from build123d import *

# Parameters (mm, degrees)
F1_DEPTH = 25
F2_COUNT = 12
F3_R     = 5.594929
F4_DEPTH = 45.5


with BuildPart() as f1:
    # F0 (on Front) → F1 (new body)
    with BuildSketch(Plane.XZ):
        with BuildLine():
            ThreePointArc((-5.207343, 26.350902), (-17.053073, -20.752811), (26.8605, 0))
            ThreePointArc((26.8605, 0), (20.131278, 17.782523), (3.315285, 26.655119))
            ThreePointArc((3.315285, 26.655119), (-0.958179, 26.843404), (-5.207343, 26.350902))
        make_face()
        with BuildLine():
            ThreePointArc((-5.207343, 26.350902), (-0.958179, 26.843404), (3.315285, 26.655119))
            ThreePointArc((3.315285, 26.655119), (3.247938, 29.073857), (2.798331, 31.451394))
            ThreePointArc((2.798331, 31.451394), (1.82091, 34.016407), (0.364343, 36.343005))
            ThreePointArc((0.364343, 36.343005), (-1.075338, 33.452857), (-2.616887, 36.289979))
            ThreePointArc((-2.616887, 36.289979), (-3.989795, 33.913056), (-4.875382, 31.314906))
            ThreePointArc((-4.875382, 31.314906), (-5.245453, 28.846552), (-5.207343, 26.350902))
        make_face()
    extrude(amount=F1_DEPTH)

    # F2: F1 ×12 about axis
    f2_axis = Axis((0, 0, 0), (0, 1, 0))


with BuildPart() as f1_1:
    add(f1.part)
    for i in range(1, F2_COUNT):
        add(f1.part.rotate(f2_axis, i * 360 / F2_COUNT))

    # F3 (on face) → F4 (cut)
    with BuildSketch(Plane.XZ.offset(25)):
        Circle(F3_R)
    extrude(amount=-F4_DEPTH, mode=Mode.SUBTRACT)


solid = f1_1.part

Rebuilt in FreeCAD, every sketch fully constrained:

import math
import FreeCAD as App
import Part
import Sketcher

V = App.Vector
Q = App.Units.Quantity

doc = App.newDocument("Part")
body = doc.addObject("PartDesign::Body", "Body")

# Sketch on XZ plane
sketch1 = body.newObject("Sketcher::SketchObject", "Sketch")
sketch1.AttachmentSupport = (doc.getObject("XZ_Plane"), [""])
sketch1.MapMode = "FlatFace"
sketch1.addGeometry(Part.ArcOfCircle(Part.Circle(V(0, 0, 0), V(0, 0, 1), 26.8605), math.radians(101.178498), math.radians(360)), False)
sketch1.addGeometry(Part.ArcOfCircle(Part.Circle(V(0, 0.000001, 0), V(0, 0, 1), 26.8605), math.radians(-0.000001), math.radians(82.91013)), False)
sketch1.addGeometry(Part.ArcOfCircle(Part.Circle(V(-11.892527, 27.441981, 0), V(0, 0, 1), 15.228154), math.radians(-2.961881), math.radians(15.265337)), False)
sketch1.addGeometry(Part.ArcOfCircle(Part.Circle(V(-10.78352, 27.744643, 0), V(0, 0, 1), 14.078589), math.radians(15.265366), math.radians(37.643052)), False)
sketch1.addGeometry(Part.ArcOfCircle(Part.Circle(V(-1.107705, 35.272631, 0), V(0, 0, 1), 1.820062), math.radians(146.015873), math.radians(396.022108)), False)
sketch1.addGeometry(Part.ArcOfCircle(Part.Circle(V(8.829681, 28.093498, 0), V(0, 0, 1), 14.078574), math.radians(144.394893), math.radians(166.772602)), False)
sketch1.addGeometry(Part.ArcOfCircle(Part.Circle(V(9.948756, 27.83046, 0), V(0, 0, 1), 15.228146), math.radians(166.772616), math.radians(185.575622)), False)
sketch1.addConstraint(Sketcher.Constraint("Coincident", 0, 2, 1, 1))
sketch1.addConstraint(Sketcher.Constraint("Coincident", 1, 2, 2, 1))
sketch1.addConstraint(Sketcher.Constraint("Coincident", 2, 2, 3, 1))
sketch1.addConstraint(Sketcher.Constraint("Coincident", 3, 2, 4, 2))
sketch1.addConstraint(Sketcher.Constraint("Coincident", 4, 1, 5, 1))
sketch1.addConstraint(Sketcher.Constraint("Coincident", 5, 2, 6, 1))
sketch1.addConstraint(Sketcher.Constraint("Coincident", 6, 2, 0, 1))
sketch1.addConstraint(Sketcher.Constraint("Coincident", 0, 3, -1, 1))
sketch1.addConstraint(Sketcher.Constraint("Coincident", 1, 3, -1, 1))
sketch1.addConstraint(Sketcher.Constraint("PointOnObject", 0, 2, -1))
sketch1.addConstraint(Sketcher.Constraint("Radius", 0, Q("26.8605 mm")))
sketch1.addConstraint(Sketcher.Constraint("Radius", 3, Q("14.078589 mm")))
sketch1.addConstraint(Sketcher.Constraint("Radius", 2, Q("15.228154 mm")))
sketch1.addConstraint(Sketcher.Constraint("Radius", 4, Q("1.820062 mm")))
sketch1.addConstraint(Sketcher.Constraint("Radius", 5, Q("14.078574 mm")))
sketch1.addConstraint(Sketcher.Constraint("Radius", 6, Q("15.228146 mm")))
sketch1.addConstraint(Sketcher.Constraint("DistanceY", -1, 1, 6, 2, Q("26.350902 mm")))
sketch1.addConstraint(Sketcher.Constraint("DistanceX", 3, 3, 5, 3, Q("19.613201 mm")))
sketch1.addConstraint(Sketcher.Constraint("DistanceY", 5, 2, 3, 2, Q("5.028099 mm")))
sketch1.addConstraint(Sketcher.Constraint("DistanceY", -1, 1, 2, 3, Q("27.441981 mm")))
sketch1.addConstraint(Sketcher.Constraint("DistanceX", 3, 3, -1, 1, Q("10.78352 mm")))
sketch1.addConstraint(Sketcher.Constraint("DistanceY", -1, 1, 4, 3, Q("35.272631 mm")))
sketch1.addConstraint(Sketcher.Constraint("DistanceY", -1, 1, 6, 3, Q("27.83046 mm")))
sketch1.addConstraint(Sketcher.Constraint("DistanceX", -1, 1, 2, 2, Q("2.798331 mm")))
sketch1.addConstraint(Sketcher.Constraint("DistanceY", -1, 1, 4, 1, Q("36.289979 mm")))
sketch1.addConstraint(Sketcher.Constraint("DistanceX", 5, 2, -1, 1, Q("4.875382 mm")))
pad1 = body.newObject("PartDesign::Pad", "Pad")
pad1.Profile = sketch1
pad1.Length = 25
body2 = doc.addObject("PartDesign::Body", "Body001")
doc.recompute()

body2.BaseFeature = body
doc.recompute()

body3 = doc.addObject("PartDesign::Body", "Body002")
body3.BaseFeature = body
body3.Placement = App.Placement(V(0, 0, 0), App.Rotation(V(0, 1, 0), 30))
boolean = body2.newObject("PartDesign::Boolean", "Boolean")
boolean.Type = "Fuse"
boolean.addObjects([body3])
doc.recompute()

body4 = doc.addObject("PartDesign::Body", "Body003")
body4.BaseFeature = body
body4.Placement = App.Placement(V(0, 0, 0), App.Rotation(V(0, 1, 0), 60))
boolean2 = body2.newObject("PartDesign::Boolean", "Boolean001")
boolean2.Type = "Fuse"
boolean2.addObjects([body4])
doc.recompute()

body5 = doc.addObject("PartDesign::Body", "Body004")
body5.BaseFeature = body
body5.Placement = App.Placement(V(0, 0, 0), App.Rotation(V(0, 1, 0), 90))
boolean3 = body2.newObject("PartDesign::Boolean", "Boolean002")
boolean3.Type = "Fuse"
boolean3.addObjects([body5])
doc.recompute()

body6 = doc.addObject("PartDesign::Body", "Body005")
body6.BaseFeature = body
body6.Placement = App.Placement(V(0, 0, 0), App.Rotation(V(0, 1, 0), 120))
boolean4 = body2.newObject("PartDesign::Boolean", "Boolean003")
boolean4.Type = "Fuse"
boolean4.addObjects([body6])
doc.recompute()

body7 = doc.addObject("PartDesign::Body", "Body006")
body7.BaseFeature = body
body7.Placement = App.Placement(V(0, 0, 0), App.Rotation(V(0, 1, 0), 150))
boolean5 = body2.newObject("PartDesign::Boolean", "Boolean004")
boolean5.Type = "Fuse"
boolean5.addObjects([body7])
doc.recompute()

body8 = doc.addObject("PartDesign::Body", "Body007")
body8.BaseFeature = body
body8.Placement = App.Placement(V(0, 0, 0), App.Rotation(V(0, 1, 0), 180))
boolean6 = body2.newObject("PartDesign::Boolean", "Boolean005")
boolean6.Type = "Fuse"
boolean6.addObjects([body8])
doc.recompute()

body9 = doc.addObject("PartDesign::Body", "Body008")
body9.BaseFeature = body
body9.Placement = App.Placement(V(0, 0, 0), App.Rotation(V(0, 1, 0), 210))
boolean7 = body2.newObject("PartDesign::Boolean", "Boolean006")
boolean7.Type = "Fuse"
boolean7.addObjects([body9])
doc.recompute()

body10 = doc.addObject("PartDesign::Body", "Body009")
body10.BaseFeature = body
body10.Placement = App.Placement(V(0, 0, 0), App.Rotation(V(0, 1, 0), 240))
boolean8 = body2.newObject("PartDesign::Boolean", "Boolean007")
boolean8.Type = "Fuse"
boolean8.addObjects([body10])
doc.recompute()

body11 = doc.addObject("PartDesign::Body", "Body010")
body11.BaseFeature = body
body11.Placement = App.Placement(V(0, 0, 0), App.Rotation(V(0, 1, 0), 270))
boolean9 = body2.newObject("PartDesign::Boolean", "Boolean008")
boolean9.Type = "Fuse"
boolean9.addObjects([body11])
doc.recompute()

body12 = doc.addObject("PartDesign::Body", "Body011")
body12.BaseFeature = body
body12.Placement = App.Placement(V(0, 0, 0), App.Rotation(V(0, 1, 0), 300))
boolean10 = body2.newObject("PartDesign::Boolean", "Boolean009")
boolean10.Type = "Fuse"
boolean10.addObjects([body12])
doc.recompute()

body.Placement = App.Placement(V(0, 0, 0), App.Rotation(V(0, 1, 0), 330))
boolean11 = body2.newObject("PartDesign::Boolean", "Boolean010")
boolean11.Type = "Fuse"
boolean11.addObjects([body])

# Sketch on XZ plane
sketch2 = body2.newObject("Sketcher::SketchObject", "Sketch001")
sketch2.AttachmentSupport = (doc.getObject("XZ_Plane001"), [""])
sketch2.MapMode = "FlatFace"
sketch2.AttachmentOffset = App.Placement(V(0, 0, 25), App.Rotation())
sketch2.addGeometry(Part.Circle(V(0, 0, 0), V(0, 0, 1), 6), False)
sketch2.addConstraint(Sketcher.Constraint("Coincident", 0, 3, -1, 1))
sketch2.addConstraint(Sketcher.Constraint("Diameter", 0, Q("11.189858 mm")))
pocket1 = body2.newObject("PartDesign::Pocket", "Pocket")
pocket1.Profile = sketch2
pocket1.Length = 45.5

doc.recompute()
